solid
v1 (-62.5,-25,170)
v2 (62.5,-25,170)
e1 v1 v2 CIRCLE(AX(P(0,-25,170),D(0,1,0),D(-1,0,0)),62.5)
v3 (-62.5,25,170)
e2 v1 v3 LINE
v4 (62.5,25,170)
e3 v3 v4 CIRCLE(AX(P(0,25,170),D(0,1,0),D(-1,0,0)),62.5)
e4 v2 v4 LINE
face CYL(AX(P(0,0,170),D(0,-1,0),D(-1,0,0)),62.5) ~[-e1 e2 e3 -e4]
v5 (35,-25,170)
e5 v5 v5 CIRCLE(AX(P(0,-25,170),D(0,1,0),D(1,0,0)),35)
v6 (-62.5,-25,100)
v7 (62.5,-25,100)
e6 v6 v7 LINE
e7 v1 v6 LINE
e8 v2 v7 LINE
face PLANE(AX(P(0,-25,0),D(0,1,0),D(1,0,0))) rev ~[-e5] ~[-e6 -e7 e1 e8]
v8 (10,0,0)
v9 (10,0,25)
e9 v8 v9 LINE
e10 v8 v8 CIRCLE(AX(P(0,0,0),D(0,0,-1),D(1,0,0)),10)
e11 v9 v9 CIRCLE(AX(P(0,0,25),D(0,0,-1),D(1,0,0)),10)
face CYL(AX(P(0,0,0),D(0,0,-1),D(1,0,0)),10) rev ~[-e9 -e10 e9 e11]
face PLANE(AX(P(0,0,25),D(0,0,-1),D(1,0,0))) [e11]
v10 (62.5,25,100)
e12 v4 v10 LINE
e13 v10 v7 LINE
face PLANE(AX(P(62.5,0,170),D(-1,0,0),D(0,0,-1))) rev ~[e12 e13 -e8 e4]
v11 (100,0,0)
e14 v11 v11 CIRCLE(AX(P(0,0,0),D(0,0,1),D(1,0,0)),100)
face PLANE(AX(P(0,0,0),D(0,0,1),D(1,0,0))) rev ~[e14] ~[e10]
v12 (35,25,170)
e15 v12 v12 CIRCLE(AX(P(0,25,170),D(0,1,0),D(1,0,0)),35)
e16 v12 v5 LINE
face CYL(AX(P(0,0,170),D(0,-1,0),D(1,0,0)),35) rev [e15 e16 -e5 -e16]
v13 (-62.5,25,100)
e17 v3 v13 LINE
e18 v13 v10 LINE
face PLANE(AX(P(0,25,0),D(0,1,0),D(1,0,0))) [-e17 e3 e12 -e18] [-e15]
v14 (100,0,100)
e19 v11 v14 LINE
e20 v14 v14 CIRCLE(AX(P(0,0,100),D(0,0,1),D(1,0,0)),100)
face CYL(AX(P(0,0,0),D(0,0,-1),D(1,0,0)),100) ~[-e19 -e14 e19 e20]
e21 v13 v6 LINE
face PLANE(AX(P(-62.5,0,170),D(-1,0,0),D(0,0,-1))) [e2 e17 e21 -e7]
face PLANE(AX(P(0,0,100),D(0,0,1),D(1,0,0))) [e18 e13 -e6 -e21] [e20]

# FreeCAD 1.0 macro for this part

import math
import FreeCAD as App
import Part
import Sketcher

V = App.Vector
Q = App.Units.Quantity

doc = App.newDocument("Part")
body = doc.addObject("PartDesign::Body", "Body")

# Sketch on XY plane
sketch1 = body.newObject("Sketcher::SketchObject", "Sketch")
sketch1.AttachmentSupport = (doc.getObject("XY_Plane"), [""])
sketch1.MapMode = "FlatFace"
sketch1.addGeometry(Part.Circle(V(0, 0, 0), V(0, 0, 1), 100), False)
sketch1.addConstraint([
    Sketcher.Constraint("Coincident", 0, 3, -1, 1),
    Sketcher.Constraint("Diameter", 0, Q("200 mm")),
])
pad1 = body.newObject("PartDesign::Pad", "Pad")
pad1.Profile = sketch1
pad1.Length = 100

# Sketch on XY plane
sketch2 = body.newObject("Sketcher::SketchObject", "Sketch001")
sketch2.AttachmentSupport = (doc.getObject("XY_Plane"), [""])
sketch2.MapMode = "FlatFace"
sketch2.addGeometry(Part.Circle(V(0, 0, 0), V(0, 0, 1), 10), False)
sketch2.addConstraint([
    Sketcher.Constraint("Coincident", 0, 3, -1, 1),
    Sketcher.Constraint("Diameter", 0, Q("20 mm")),
])
pocket1 = body.newObject("PartDesign::Pocket", "Pocket")
pocket1.Profile = sketch2
pocket1.Length = 25
pocket1.Reversed = True

# Sketch on XZ plane
sketch3 = body.newObject("Sketcher::SketchObject", "Sketch002")
sketch3.AttachmentSupport = (doc.getObject("XZ_Plane"), [""])
sketch3.MapMode = "FlatFace"
sketch3.addGeometry([
    Part.LineSegment(V(-62.5, 100, 0), V(-62.5, 170, 0)),  # 0
    Part.ArcOfCircle(Part.Circle(V(0, 170, 0), V(0, 0, 1), 62.5), math.radians(0), math.radians(180)),  # 1
    Part.LineSegment(V(62.5, 170, 0), V(62.5, 100, 0)),  # 2
    Part.LineSegment(V(62.5, 100, 0), V(-62.5, 100, 0)),  # 3
    Part.Circle(V(0, 170, 0), V(0, 0, 1), 35),  # 4
], False)
sketch3.addConstraint([
    Sketcher.Constraint("Tangent", 0, 2, 1, 2),
    Sketcher.Constraint("Tangent", 1, 1, 2, 1),
    Sketcher.Constraint("Coincident", 2, 2, 3, 1),
    Sketcher.Constraint("Coincident", 3, 2, 0, 1),
    Sketcher.Constraint("Vertical", 0),
    Sketcher.Constraint("Vertical", 2),
    Sketcher.Constraint("Horizontal", 3),
    Sketcher.Constraint("Coincident", 4, 3, 1, 3),
    Sketcher.Constraint("PointOnObject", 1, 3, -2),
    Sketcher.Constraint("Diameter", 4, Q("70 mm")),
    Sketcher.Constraint("Radius", 1, Q("62.5 mm")),
    Sketcher.Constraint("DistanceY", 0, 1, 0, 2, Q("70 mm")),
    Sketcher.Constraint("DistanceY", -1, 1, 1, 3, Q("170 mm")),
])
pad2 = body.newObject("PartDesign::Pad", "Pad001")
pad2.Profile = sketch3
pad2.Length = 50
pad2.Midplane = True

doc.recompute()
